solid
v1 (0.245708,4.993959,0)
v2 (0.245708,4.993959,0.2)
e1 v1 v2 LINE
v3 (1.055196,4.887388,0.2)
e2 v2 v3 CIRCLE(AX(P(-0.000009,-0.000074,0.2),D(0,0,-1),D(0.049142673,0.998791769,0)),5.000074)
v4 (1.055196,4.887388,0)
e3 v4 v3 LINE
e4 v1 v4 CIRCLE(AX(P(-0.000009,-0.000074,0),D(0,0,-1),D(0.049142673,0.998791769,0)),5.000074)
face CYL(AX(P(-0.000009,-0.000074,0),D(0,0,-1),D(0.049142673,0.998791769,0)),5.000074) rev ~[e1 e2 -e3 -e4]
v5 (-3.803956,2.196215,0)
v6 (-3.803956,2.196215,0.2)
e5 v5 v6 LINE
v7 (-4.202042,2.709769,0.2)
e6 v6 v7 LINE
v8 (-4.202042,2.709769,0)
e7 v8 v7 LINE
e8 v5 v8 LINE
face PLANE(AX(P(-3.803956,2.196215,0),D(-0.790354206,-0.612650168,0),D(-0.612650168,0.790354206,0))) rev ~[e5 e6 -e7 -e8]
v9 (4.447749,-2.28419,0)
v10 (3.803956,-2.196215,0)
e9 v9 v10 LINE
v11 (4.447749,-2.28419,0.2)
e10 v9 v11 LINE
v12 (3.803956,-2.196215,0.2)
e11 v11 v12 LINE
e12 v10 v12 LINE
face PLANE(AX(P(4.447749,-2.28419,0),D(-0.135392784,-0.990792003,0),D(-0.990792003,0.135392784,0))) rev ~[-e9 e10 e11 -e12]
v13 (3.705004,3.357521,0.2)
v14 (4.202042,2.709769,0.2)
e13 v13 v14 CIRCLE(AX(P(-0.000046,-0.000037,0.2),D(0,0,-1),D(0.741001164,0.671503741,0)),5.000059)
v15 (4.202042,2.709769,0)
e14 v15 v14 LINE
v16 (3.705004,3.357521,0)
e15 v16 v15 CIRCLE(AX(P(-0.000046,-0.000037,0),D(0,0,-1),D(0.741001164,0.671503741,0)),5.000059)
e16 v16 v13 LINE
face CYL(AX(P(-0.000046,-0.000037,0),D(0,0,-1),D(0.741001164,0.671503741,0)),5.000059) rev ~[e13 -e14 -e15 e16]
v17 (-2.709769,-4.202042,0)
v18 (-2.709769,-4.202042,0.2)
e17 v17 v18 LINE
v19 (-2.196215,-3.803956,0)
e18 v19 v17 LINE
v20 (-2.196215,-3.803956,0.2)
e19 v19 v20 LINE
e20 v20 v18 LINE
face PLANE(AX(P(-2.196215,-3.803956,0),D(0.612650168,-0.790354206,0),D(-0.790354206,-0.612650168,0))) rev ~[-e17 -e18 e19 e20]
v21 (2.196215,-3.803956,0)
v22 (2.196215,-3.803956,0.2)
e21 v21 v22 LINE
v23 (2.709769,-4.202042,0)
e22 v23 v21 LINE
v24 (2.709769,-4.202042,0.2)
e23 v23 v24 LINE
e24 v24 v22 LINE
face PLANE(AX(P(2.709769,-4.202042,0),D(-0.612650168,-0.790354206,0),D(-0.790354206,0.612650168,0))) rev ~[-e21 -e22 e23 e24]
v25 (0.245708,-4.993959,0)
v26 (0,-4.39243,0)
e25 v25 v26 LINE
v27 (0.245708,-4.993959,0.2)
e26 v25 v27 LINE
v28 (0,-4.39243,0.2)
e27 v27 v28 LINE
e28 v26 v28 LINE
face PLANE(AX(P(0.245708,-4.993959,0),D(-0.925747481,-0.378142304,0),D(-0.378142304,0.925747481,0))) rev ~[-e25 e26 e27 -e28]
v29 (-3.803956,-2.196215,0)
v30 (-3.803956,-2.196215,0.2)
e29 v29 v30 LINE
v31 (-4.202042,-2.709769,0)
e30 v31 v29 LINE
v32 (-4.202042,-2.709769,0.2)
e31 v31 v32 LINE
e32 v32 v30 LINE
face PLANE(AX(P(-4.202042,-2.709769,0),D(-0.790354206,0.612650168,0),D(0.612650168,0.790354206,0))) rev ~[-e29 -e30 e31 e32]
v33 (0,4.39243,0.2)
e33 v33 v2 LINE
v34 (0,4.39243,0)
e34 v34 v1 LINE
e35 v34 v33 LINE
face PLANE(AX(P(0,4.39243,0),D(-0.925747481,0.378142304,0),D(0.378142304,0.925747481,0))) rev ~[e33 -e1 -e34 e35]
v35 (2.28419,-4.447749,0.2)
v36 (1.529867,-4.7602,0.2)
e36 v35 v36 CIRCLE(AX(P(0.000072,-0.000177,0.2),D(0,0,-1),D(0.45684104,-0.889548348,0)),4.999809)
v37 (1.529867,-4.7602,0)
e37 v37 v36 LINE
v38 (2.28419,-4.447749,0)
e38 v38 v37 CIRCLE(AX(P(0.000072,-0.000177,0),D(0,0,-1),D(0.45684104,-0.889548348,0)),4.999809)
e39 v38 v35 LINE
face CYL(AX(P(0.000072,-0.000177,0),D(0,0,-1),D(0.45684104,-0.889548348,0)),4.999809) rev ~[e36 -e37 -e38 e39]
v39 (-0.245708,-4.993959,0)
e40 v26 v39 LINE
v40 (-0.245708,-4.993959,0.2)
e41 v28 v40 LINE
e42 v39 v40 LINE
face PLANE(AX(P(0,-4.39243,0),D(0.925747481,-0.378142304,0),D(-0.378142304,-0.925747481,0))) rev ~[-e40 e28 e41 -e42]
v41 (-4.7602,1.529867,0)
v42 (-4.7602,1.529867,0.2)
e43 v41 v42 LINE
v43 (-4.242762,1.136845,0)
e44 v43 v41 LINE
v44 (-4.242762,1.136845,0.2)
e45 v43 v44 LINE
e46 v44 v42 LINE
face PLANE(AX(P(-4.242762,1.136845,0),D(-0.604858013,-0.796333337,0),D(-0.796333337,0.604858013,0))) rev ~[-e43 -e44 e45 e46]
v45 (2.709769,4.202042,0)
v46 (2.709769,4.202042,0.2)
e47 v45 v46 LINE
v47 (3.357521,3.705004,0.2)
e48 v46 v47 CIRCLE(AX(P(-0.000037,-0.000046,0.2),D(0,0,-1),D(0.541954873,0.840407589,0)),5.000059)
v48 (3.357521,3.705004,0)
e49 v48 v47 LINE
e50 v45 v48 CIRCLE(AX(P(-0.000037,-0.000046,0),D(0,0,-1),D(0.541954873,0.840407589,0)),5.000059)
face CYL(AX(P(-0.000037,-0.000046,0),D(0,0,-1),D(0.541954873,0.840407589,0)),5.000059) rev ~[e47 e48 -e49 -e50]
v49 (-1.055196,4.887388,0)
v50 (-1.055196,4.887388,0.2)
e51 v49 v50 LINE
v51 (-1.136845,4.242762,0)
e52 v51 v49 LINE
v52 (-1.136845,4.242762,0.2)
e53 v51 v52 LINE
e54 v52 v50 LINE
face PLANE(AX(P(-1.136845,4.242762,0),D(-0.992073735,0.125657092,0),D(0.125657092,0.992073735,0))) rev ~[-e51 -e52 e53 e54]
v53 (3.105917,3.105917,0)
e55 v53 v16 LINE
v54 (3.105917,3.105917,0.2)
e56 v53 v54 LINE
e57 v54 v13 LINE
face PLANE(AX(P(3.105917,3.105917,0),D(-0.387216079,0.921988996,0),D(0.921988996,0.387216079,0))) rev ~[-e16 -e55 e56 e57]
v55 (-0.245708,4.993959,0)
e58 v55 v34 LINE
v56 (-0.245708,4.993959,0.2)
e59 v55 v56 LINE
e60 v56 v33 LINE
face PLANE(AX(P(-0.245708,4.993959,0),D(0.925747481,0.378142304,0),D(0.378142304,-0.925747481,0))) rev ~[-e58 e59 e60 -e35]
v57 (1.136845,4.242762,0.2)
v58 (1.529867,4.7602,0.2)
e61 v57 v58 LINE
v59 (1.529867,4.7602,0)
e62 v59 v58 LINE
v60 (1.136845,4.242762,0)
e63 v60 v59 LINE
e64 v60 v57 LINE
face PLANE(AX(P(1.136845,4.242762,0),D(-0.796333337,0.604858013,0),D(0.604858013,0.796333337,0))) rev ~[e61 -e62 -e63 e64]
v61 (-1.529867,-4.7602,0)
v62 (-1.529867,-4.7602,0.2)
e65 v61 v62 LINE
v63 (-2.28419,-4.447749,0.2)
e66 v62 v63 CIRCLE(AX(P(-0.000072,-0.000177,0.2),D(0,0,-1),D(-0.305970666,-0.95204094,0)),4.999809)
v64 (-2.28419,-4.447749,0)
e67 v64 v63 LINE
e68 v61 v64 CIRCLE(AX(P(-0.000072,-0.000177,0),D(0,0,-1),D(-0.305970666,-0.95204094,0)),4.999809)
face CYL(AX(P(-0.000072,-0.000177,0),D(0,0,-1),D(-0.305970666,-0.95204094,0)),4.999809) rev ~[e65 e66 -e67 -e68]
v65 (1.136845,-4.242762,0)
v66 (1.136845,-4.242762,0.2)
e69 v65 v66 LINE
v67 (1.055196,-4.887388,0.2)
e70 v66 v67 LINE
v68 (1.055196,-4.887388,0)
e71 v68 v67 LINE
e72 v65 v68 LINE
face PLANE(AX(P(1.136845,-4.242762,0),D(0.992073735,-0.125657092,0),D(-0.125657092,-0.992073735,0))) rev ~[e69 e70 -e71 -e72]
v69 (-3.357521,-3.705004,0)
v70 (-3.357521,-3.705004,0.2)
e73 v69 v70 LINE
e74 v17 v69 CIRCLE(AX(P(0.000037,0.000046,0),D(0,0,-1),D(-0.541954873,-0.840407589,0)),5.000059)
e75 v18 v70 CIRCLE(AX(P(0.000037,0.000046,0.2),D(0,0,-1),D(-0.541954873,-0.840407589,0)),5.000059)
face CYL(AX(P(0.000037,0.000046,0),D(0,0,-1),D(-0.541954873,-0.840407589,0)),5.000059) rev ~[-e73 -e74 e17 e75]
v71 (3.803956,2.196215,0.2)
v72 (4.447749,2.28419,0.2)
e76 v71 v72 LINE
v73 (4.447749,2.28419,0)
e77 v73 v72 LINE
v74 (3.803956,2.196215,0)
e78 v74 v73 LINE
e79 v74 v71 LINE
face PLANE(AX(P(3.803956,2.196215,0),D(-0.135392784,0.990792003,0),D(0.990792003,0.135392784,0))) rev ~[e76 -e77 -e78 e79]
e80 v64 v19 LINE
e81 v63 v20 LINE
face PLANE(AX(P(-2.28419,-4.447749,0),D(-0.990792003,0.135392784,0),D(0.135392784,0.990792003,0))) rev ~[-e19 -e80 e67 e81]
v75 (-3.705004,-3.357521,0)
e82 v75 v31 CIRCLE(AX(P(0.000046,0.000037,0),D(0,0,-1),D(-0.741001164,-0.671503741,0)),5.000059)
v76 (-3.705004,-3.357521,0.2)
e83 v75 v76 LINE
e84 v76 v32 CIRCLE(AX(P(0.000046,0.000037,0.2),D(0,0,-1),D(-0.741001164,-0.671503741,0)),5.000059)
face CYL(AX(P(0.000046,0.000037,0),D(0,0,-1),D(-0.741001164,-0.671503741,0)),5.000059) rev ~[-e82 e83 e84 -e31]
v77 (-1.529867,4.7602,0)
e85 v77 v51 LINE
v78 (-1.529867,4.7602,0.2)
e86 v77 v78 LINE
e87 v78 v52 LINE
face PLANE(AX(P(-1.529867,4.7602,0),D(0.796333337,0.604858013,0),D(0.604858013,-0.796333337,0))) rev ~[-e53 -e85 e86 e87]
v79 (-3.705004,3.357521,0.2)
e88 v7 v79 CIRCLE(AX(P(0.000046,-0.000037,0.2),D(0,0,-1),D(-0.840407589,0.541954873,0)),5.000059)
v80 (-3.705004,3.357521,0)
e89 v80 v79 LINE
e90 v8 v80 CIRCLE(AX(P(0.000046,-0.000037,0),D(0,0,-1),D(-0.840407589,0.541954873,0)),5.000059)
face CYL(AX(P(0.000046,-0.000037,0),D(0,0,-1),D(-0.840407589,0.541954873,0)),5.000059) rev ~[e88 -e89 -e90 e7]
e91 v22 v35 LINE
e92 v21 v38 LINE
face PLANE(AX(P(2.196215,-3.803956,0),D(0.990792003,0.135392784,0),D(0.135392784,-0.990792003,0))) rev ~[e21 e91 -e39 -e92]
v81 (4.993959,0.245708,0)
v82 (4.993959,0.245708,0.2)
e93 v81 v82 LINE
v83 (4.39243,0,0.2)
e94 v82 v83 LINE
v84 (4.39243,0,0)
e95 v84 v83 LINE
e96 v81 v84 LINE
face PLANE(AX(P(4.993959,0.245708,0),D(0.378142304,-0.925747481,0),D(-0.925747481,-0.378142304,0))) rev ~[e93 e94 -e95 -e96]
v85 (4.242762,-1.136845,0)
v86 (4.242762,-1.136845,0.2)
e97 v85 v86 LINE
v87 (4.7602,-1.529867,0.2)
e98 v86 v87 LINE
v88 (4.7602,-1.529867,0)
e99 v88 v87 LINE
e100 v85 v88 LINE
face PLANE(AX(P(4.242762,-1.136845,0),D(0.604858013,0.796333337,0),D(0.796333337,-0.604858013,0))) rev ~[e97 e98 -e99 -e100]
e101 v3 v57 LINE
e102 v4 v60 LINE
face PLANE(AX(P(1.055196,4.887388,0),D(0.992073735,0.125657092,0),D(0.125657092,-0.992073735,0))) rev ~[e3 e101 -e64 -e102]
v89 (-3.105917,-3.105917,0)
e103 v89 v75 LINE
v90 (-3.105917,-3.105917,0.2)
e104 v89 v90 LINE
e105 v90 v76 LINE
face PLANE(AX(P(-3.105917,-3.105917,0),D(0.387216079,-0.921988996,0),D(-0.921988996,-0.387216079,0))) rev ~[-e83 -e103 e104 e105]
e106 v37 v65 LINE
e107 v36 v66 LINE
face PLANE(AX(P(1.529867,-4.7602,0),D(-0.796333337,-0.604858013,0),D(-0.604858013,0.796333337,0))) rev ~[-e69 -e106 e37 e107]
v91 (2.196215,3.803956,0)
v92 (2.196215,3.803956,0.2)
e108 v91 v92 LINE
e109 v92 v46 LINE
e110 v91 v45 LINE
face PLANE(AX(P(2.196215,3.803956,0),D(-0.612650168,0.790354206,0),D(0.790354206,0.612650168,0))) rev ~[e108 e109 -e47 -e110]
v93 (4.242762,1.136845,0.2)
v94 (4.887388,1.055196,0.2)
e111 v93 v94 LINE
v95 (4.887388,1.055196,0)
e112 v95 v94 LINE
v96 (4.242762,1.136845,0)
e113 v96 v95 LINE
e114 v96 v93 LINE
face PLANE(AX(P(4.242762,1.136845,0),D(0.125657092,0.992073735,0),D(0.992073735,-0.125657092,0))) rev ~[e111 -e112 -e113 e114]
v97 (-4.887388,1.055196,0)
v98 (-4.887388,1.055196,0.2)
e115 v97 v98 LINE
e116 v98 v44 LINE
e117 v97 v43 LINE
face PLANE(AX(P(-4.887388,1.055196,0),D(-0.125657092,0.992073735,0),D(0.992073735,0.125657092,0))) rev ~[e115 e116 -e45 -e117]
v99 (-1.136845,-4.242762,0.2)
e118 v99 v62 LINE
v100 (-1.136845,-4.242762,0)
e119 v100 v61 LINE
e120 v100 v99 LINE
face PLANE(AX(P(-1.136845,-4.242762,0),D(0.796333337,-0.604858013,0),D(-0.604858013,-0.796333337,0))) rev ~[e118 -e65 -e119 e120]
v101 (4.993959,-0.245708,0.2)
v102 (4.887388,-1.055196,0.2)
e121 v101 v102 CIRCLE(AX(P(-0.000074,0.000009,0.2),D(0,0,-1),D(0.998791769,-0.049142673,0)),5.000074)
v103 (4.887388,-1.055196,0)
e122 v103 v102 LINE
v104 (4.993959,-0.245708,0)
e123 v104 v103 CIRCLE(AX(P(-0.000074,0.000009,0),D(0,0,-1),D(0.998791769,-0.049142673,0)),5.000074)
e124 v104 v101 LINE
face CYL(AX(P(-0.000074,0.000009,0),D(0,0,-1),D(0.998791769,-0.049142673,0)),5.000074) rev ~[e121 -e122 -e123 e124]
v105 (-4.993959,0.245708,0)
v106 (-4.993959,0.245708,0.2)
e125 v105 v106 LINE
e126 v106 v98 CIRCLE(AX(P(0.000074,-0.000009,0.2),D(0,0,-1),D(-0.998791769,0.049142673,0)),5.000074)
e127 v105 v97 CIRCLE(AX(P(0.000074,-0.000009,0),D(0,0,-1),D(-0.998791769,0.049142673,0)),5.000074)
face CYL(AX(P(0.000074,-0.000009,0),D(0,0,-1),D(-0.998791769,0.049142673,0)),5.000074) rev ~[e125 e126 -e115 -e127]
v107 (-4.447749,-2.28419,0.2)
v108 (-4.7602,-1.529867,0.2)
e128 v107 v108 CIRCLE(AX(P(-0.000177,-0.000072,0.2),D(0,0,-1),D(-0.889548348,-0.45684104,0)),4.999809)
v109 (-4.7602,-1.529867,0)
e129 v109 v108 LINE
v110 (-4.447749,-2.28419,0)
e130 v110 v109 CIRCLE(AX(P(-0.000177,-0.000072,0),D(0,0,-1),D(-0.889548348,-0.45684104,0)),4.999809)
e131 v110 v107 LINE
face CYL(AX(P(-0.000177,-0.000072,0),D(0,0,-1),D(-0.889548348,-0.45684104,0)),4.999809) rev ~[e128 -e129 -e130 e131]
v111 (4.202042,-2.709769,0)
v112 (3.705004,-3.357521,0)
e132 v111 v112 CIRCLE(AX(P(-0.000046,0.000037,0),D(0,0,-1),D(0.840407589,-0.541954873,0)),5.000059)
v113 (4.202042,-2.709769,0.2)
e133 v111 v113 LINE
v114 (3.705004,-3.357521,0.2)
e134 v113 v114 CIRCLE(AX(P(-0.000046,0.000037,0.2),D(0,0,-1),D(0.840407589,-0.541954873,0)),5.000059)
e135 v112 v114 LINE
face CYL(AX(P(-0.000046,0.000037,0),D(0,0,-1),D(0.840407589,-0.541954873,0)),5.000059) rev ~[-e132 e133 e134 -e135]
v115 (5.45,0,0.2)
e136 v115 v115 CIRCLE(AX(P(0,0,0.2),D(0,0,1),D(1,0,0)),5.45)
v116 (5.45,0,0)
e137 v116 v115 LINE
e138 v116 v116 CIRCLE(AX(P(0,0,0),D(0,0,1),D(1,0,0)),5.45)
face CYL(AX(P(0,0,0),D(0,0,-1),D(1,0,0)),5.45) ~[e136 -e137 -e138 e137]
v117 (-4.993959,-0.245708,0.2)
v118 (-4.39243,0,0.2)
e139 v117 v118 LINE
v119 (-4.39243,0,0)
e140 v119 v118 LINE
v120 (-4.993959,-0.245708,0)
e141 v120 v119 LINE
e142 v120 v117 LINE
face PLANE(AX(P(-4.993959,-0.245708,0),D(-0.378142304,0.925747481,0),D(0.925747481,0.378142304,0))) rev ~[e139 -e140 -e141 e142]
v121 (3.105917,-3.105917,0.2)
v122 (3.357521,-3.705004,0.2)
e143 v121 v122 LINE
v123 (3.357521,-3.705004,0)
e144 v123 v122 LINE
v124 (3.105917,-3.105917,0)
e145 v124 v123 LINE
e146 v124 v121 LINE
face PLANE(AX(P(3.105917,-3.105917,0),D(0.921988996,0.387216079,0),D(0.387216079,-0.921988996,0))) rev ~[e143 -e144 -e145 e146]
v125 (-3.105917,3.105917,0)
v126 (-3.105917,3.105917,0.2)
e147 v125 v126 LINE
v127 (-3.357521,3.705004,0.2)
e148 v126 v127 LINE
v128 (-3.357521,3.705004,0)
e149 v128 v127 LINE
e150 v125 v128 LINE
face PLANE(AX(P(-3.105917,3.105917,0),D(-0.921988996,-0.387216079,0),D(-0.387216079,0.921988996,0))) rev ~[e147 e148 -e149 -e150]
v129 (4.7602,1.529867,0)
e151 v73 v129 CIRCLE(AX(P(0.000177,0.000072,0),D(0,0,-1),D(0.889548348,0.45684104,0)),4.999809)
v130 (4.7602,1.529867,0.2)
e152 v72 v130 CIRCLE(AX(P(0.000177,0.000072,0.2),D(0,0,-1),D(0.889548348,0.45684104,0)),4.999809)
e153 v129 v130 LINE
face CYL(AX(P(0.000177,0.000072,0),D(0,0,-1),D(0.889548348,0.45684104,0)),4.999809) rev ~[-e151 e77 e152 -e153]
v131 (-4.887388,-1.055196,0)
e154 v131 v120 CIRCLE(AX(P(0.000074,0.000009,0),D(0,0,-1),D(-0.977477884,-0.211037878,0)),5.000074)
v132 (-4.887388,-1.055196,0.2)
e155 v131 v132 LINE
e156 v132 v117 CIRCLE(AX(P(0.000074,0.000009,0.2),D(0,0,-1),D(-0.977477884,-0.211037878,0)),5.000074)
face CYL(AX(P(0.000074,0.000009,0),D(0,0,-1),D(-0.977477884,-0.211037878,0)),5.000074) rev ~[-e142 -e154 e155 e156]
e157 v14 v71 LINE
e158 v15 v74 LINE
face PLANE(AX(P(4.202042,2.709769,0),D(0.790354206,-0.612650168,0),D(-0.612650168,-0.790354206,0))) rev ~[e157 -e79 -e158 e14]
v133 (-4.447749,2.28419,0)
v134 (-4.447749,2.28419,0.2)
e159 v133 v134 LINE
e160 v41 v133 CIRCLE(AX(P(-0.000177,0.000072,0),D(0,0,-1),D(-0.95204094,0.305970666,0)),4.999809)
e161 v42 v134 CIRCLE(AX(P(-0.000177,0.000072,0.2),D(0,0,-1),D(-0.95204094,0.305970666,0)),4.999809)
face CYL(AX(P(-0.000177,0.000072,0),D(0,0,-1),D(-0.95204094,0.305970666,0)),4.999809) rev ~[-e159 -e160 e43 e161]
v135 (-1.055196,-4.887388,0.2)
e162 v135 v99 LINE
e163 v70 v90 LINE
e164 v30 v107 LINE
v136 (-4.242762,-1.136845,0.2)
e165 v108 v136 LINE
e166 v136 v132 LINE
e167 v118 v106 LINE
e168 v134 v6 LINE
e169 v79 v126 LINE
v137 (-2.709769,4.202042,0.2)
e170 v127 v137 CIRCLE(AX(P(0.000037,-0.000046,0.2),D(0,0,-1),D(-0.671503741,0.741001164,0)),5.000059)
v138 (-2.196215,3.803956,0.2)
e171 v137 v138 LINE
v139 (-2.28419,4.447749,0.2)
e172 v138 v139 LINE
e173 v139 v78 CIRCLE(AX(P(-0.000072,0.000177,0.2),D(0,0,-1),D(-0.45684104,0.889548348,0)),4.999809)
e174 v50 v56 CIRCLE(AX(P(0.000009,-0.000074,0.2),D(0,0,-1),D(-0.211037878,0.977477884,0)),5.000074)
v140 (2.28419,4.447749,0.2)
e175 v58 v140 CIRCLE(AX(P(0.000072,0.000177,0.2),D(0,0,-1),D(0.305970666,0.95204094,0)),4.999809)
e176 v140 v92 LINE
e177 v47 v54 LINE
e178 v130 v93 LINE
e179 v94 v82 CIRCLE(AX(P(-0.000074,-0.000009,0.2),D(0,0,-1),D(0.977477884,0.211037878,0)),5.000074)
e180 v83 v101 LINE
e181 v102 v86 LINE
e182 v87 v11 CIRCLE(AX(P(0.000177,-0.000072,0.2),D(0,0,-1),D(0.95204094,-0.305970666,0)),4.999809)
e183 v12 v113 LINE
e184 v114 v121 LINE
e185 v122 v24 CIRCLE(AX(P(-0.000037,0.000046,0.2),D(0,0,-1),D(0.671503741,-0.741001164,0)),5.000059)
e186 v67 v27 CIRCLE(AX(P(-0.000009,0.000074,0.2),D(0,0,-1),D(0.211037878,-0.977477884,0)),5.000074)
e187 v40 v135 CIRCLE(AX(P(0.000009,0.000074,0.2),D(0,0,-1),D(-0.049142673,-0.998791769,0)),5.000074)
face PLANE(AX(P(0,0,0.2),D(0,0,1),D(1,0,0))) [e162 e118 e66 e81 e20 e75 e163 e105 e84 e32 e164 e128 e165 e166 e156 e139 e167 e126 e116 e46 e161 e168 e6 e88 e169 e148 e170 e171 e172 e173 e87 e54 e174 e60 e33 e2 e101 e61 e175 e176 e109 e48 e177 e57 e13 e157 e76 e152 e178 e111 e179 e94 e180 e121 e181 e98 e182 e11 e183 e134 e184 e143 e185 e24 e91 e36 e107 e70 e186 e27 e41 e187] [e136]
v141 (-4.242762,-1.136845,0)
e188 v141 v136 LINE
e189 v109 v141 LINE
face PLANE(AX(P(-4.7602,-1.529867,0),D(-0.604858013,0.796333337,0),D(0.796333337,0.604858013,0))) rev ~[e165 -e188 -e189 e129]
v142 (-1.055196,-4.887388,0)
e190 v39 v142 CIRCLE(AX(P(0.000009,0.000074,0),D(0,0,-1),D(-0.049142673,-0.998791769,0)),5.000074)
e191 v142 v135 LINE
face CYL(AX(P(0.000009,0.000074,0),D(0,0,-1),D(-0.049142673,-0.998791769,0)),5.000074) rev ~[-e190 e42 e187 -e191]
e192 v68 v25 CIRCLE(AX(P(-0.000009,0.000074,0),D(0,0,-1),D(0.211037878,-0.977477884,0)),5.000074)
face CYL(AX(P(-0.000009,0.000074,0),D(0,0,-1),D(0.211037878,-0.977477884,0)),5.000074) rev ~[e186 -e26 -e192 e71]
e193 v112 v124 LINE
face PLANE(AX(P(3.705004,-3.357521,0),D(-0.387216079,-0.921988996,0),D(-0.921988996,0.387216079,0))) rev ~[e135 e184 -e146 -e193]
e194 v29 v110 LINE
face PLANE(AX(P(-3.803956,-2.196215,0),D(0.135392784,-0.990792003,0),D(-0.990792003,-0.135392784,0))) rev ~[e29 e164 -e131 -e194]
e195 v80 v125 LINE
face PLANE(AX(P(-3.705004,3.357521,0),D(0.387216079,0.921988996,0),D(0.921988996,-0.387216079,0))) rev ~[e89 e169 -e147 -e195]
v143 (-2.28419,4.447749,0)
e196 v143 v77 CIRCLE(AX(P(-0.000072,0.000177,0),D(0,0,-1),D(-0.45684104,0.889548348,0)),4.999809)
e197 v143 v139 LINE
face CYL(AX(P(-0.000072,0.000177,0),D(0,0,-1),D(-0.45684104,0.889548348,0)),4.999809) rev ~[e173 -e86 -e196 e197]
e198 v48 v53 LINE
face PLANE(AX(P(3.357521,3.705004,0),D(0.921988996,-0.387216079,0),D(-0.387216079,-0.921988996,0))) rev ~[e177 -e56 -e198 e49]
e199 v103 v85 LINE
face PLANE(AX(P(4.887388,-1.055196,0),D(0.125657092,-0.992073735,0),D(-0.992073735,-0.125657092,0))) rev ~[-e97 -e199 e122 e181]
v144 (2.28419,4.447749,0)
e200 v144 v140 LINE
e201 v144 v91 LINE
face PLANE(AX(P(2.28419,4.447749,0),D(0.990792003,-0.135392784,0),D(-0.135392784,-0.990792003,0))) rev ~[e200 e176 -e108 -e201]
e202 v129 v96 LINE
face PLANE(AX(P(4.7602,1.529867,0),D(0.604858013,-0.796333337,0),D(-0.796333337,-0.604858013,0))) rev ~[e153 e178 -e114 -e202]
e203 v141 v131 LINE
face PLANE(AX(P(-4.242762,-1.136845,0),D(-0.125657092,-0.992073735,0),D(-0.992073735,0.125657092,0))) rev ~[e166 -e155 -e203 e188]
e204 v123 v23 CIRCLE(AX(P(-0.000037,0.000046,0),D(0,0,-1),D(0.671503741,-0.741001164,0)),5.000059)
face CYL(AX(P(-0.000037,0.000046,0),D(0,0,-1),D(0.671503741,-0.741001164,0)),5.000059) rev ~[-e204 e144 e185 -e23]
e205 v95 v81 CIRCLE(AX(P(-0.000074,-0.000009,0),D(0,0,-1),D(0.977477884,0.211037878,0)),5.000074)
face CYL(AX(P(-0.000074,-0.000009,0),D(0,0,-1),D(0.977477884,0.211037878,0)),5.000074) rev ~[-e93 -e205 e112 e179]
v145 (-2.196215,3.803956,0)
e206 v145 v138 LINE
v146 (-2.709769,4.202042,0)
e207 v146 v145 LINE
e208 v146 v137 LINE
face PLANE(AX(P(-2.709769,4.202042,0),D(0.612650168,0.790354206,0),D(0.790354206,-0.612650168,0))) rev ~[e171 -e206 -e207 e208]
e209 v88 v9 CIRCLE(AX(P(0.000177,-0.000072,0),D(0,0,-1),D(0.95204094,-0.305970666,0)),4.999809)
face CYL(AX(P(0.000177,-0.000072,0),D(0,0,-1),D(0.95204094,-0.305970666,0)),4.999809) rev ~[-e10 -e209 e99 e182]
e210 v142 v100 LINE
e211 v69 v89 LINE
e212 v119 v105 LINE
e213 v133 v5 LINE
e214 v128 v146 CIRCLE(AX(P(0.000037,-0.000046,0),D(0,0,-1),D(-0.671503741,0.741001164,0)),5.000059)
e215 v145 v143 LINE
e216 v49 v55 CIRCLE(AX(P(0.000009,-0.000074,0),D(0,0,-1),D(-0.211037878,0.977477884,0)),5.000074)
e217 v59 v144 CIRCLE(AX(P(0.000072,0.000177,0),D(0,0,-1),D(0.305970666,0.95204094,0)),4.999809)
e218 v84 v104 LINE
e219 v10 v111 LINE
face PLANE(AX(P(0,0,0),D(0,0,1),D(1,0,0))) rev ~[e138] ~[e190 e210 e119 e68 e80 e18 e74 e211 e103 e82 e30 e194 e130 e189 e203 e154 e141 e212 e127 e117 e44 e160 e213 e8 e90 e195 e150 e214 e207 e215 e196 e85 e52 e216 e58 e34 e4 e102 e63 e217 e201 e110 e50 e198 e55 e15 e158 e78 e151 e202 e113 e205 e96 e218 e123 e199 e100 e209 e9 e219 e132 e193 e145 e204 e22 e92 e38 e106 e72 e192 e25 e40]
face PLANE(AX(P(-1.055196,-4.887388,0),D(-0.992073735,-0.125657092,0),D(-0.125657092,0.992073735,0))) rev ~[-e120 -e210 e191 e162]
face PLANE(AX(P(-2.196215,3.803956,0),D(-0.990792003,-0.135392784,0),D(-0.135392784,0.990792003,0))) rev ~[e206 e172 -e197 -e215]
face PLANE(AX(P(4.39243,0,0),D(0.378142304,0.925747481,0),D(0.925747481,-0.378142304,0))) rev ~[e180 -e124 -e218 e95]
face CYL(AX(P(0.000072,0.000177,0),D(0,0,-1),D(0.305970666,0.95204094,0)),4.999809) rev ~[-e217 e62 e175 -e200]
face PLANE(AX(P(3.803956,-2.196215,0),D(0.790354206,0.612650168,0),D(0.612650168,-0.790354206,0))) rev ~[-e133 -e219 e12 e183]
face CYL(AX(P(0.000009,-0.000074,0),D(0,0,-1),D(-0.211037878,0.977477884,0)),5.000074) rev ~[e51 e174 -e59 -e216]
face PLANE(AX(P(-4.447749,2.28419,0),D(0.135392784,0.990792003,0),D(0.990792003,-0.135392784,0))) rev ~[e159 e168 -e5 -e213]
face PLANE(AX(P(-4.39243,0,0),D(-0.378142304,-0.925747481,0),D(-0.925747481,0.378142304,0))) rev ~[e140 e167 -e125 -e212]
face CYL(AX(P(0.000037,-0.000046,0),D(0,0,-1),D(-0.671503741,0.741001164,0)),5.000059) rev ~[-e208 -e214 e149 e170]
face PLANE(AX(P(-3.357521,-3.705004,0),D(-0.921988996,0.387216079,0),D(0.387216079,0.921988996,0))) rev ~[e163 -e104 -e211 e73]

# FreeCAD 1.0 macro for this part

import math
import FreeCAD as App
import Part
import Sketcher
from FreeCAD import Vector
Q = App.Units.Quantity

doc = App.newDocument("Part")
body = doc.addObject("PartDesign::Body", "Body")

# Sketch on XY plane
sketch1 = body.newObject("Sketcher::SketchObject", "Sketch")
sketch1.AttachmentSupport = (doc.getObject("XY_Plane"), [""])
sketch1.MapMode = "FlatFace"
sketch1.addGeometry([
    Part.Circle(Vector(0, 0, 0), Vector(0, 0, 1), 5.45),  # 0
    Part.ArcOfCircle(Part.Circle(Vector(-0.000074, -0.000009, 0), Vector(0, 0, 1), 5.000074), math.radians(2.816802), math.radians(12.183181)),  # 1
    Part.LineSegment(Vector(4.993959, 0.245708, 0), Vector(4.39243, 0, 0)),  # 2
    Part.LineSegment(Vector(4.39243, 0, 0), Vector(4.993959, -0.245708, 0)),  # 3
    Part.ArcOfCircle(Part.Circle(Vector(-0.000074, 0.000009, 0), Vector(0, 0, 1), 5.000074), math.radians(-12.183181), math.radians(-2.816802)),  # 4
    Part.LineSegment(Vector(4.887388, -1.055196, 0), Vector(4.242762, -1.136845, 0)),  # 5
    Part.LineSegment(Vector(4.242762, -1.136845, 0), Vector(4.7602, -1.529867, 0)),  # 6
    Part.ArcOfCircle(Part.Circle(Vector(0.000177, -0.000072, 0), Vector(0, 0, 1), 4.999809), math.radians(-27.183453), math.radians(-17.816571)),  # 7
    Part.LineSegment(Vector(4.447749, -2.28419, 0), Vector(3.803956, -2.196215, 0)),  # 8
    Part.LineSegment(Vector(3.803956, -2.196215, 0), Vector(4.202042, -2.709769, 0)),  # 9
    Part.ArcOfCircle(Part.Circle(Vector(-0.000046, 0.000037, 0), Vector(0, 0, 1), 5.000059), math.radians(-42.183231), math.radians(-32.816815)),  # 10
    Part.LineSegment(Vector(3.705004, -3.357521, 0), Vector(3.105917, -3.105917, 0)),  # 11
    Part.LineSegment(Vector(3.105917, -3.105917, 0), Vector(3.357521, -3.705004, 0)),  # 12
    Part.ArcOfCircle(Part.Circle(Vector(-0.000037, 0.000046, 0), Vector(0, 0, 1), 5.000059), math.radians(-57.183185), math.radians(-47.816769)),  # 13
    Part.LineSegment(Vector(2.709769, -4.202042, 0), Vector(2.196215, -3.803956, 0)),  # 14
    Part.LineSegment(Vector(2.196215, -3.803956, 0), Vector(2.28419, -4.447749, 0)),  # 15
    Part.ArcOfCircle(Part.Circle(Vector(0.000072, -0.000177, 0), Vector(0, 0, 1), 4.999809), math.radians(-72.183429), math.radians(-62.816547)),  # 16
    Part.LineSegment(Vector(1.529867, -4.7602, 0), Vector(1.136845, -4.242762, 0)),  # 17
    Part.LineSegment(Vector(1.136845, -4.242762, 0), Vector(1.055196, -4.887388, 0)),  # 18
    Part.ArcOfCircle(Part.Circle(Vector(-0.000009, 0.000074, 0), Vector(0, 0, 1), 5.000074), math.radians(-87.183198), math.radians(-77.816819)),  # 19
    Part.LineSegment(Vector(0.245708, -4.993959, 0), Vector(0, -4.39243, 0)),  # 20
    Part.LineSegment(Vector(0, -4.39243, 0), Vector(-0.245708, -4.993959, 0)),  # 21
    Part.ArcOfCircle(Part.Circle(Vector(0.000009, 0.000074, 0), Vector(0, 0, 1), 5.000074), math.radians(-102.183181), math.radians(-92.816802)),  # 22
    Part.LineSegment(Vector(-1.055196, -4.887388, 0), Vector(-1.136845, -4.242762, 0)),  # 23
    Part.LineSegment(Vector(-1.136845, -4.242762, 0), Vector(-1.529867, -4.7602, 0)),  # 24
    Part.ArcOfCircle(Part.Circle(Vector(-0.000072, -0.000177, 0), Vector(0, 0, 1), 4.999809), math.radians(-117.183453), math.radians(-107.816571)),  # 25
    Part.LineSegment(Vector(-2.28419, -4.447749, 0), Vector(-2.196215, -3.803956, 0)),  # 26
    Part.LineSegment(Vector(-2.196215, -3.803956, 0), Vector(-2.709769, -4.202042, 0)),  # 27
    Part.ArcOfCircle(Part.Circle(Vector(0.000037, 0.000046, 0), Vector(0, 0, 1), 5.000059), math.radians(-132.183231), math.radians(-122.816815)),  # 28
    Part.LineSegment(Vector(-3.357521, -3.705004, 0), Vector(-3.105917, -3.105917, 0)),  # 29
    Part.LineSegment(Vector(-3.105917, -3.105917, 0), Vector(-3.705004, -3.357521, 0)),  # 30
    Part.ArcOfCircle(Part.Circle(Vector(0.000046, 0.000037, 0), Vector(0, 0, 1), 5.000059), math.radians(-147.183185), math.radians(-137.816769)),  # 31
    Part.LineSegment(Vector(-4.202042, -2.709769, 0), Vector(-3.803956, -2.196215, 0)),  # 32
    Part.LineSegment(Vector(-3.803956, -2.196215, 0), Vector(-4.447749, -2.28419, 0)),  # 33
    Part.ArcOfCircle(Part.Circle(Vector(-0.000177, -0.000072, 0), Vector(0, 0, 1), 4.999809), math.radians(-162.183429), math.radians(-152.816547)),  # 34
    Part.LineSegment(Vector(-4.7602, -1.529867, 0), Vector(-4.242762, -1.136845, 0)),  # 35
    Part.LineSegment(Vector(-4.242762, -1.136845, 0), Vector(-4.887388, -1.055196, 0)),  # 36
    Part.ArcOfCircle(Part.Circle(Vector(0.000074, 0.000009, 0), Vector(0, 0, 1), 5.000074), math.radians(-177.183198), math.radians(-167.816819)),  # 37
    Part.LineSegment(Vector(-4.993959, -0.245708, 0), Vector(-4.39243, 0, 0)),  # 38
    Part.LineSegment(Vector(-4.39243, 0, 0), Vector(-4.993959, 0.245708, 0)),  # 39
    Part.ArcOfCircle(Part.Circle(Vector(0.000074, -0.000009, 0), Vector(0, 0, 1), 5.000074), math.radians(167.816819), math.radians(177.183198)),  # 40
    Part.LineSegment(Vector(-4.887388, 1.055196, 0), Vector(-4.242762, 1.136845, 0)),  # 41
    Part.LineSegment(Vector(-4.242762, 1.136845, 0), Vector(-4.7602, 1.529867, 0)),  # 42
    Part.ArcOfCircle(Part.Circle(Vector(-0.000177, 0.000072, 0), Vector(0, 0, 1), 4.999809), math.radians(152.816547), math.radians(162.183429)),  # 43
    Part.LineSegment(Vector(-4.447749, 2.28419, 0), Vector(-3.803956, 2.196215, 0)),  # 44
    Part.LineSegment(Vector(-3.803956, 2.196215, 0), Vector(-4.202042, 2.709769, 0)),  # 45
    Part.ArcOfCircle(Part.Circle(Vector(0.000046, -0.000037, 0), Vector(0, 0, 1), 5.000059), math.radians(137.816769), math.radians(147.183185)),  # 46
    Part.LineSegment(Vector(-3.705004, 3.357521, 0), Vector(-3.105917, 3.105917, 0)),  # 47
    Part.LineSegment(Vector(-3.105917, 3.105917, 0), Vector(-3.357521, 3.705004, 0)),  # 48
    Part.ArcOfCircle(Part.Circle(Vector(0.000037, -0.000046, 0), Vector(0, 0, 1), 5.000059), math.radians(122.816815), math.radians(132.183231)),  # 49
    Part.LineSegment(Vector(-2.709769, 4.202042, 0), Vector(-2.196215, 3.803956, 0)),  # 50
    Part.LineSegment(Vector(-2.196215, 3.803956, 0), Vector(-2.28419, 4.447749, 0)),  # 51
    Part.ArcOfCircle(Part.Circle(Vector(-0.000072, 0.000177, 0), Vector(0, 0, 1), 4.999809), math.radians(107.816571), math.radians(117.183453)),  # 52
    Part.LineSegment(Vector(-1.529867, 4.7602, 0), Vector(-1.136845, 4.242762, 0)),  # 53
    Part.LineSegment(Vector(-1.136845, 4.242762, 0), Vector(-1.055196, 4.887388, 0)),  # 54
    Part.ArcOfCircle(Part.Circle(Vector(0.000009, -0.000074, 0), Vector(0, 0, 1), 5.000074), math.radians(92.816802), math.radians(102.183181)),  # 55
    Part.LineSegment(Vector(-0.245708, 4.993959, 0), Vector(0, 4.39243, 0)),  # 56
    Part.LineSegment(Vector(0, 4.39243, 0), Vector(0.245708, 4.993959, 0)),  # 57
    Part.ArcOfCircle(Part.Circle(Vector(-0.000009, -0.000074, 0), Vector(0, 0, 1), 5.000074), math.radians(77.816819), math.radians(87.183198)),  # 58
    Part.LineSegment(Vector(1.055196, 4.887388, 0), Vector(1.136845, 4.242762, 0)),  # 59
    Part.LineSegment(Vector(1.136845, 4.242762, 0), Vector(1.529867, 4.7602, 0)),  # 60
    Part.ArcOfCircle(Part.Circle(Vector(0.000072, 0.000177, 0), Vector(0, 0, 1), 4.999809), math.radians(62.816547), math.radians(72.183429)),  # 61
    Part.LineSegment(Vector(2.28419, 4.447749, 0), Vector(2.196215, 3.803956, 0)),  # 62
    Part.LineSegment(Vector(2.196215, 3.803956, 0), Vector(2.709769, 4.202042, 0)),  # 63
    Part.ArcOfCircle(Part.Circle(Vector(-0.000037, -0.000046, 0), Vector(0, 0, 1), 5.000059), math.radians(47.816769), math.radians(57.183185)),  # 64
    Part.LineSegment(Vector(3.357521, 3.705004, 0), Vector(3.105917, 3.105917, 0)),  # 65
    Part.LineSegment(Vector(3.105917, 3.105917, 0), Vector(3.705004, 3.357521, 0)),  # 66
    Part.ArcOfCircle(Part.Circle(Vector(-0.000046, -0.000037, 0), Vector(0, 0, 1), 5.000059), math.radians(32.816815), math.radians(42.183231)),  # 67
    Part.LineSegment(Vector(4.202042, 2.709769, 0), Vector(3.803956, 2.196215, 0)),  # 68
    Part.LineSegment(Vector(3.803956, 2.196215, 0), Vector(4.447749, 2.28419, 0)),  # 69
    Part.ArcOfCircle(Part.Circle(Vector(0.000177, 0.000072, 0), Vector(0, 0, 1), 4.999809), math.radians(17.816571), math.radians(27.183453)),  # 70
    Part.LineSegment(Vector(4.7602, 1.529867, 0), Vector(4.242762, 1.136845, 0)),  # 71
    Part.LineSegment(Vector(4.242762, 1.136845, 0), Vector(4.887388, 1.055196, 0)),  # 72
], False)
sketch1.addConstraint([
    Sketcher.Constraint("Coincident", 1, 1, 2, 1),
    Sketcher.Constraint("Coincident", 2, 2, 3, 1),
    Sketcher.Constraint("Coincident", 3, 2, 4, 2),
    Sketcher.Constraint("Coincident", 4, 1, 5, 1),
    Sketcher.Constraint("Coincident", 5, 2, 6, 1),
    Sketcher.Constraint("Coincident", 6, 2, 7, 2),
    Sketcher.Constraint("Coincident", 7, 1, 8, 1),
    Sketcher.Constraint("Coincident", 8, 2, 9, 1),
    Sketcher.Constraint("Coincident", 9, 2, 10, 2),
    Sketcher.Constraint("Coincident", 10, 1, 11, 1),
    Sketcher.Constraint("Coincident", 11, 2, 12, 1),
    Sketcher.Constraint("Coincident", 12, 2, 13, 2),
    Sketcher.Constraint("Coincident", 13, 1, 14, 1),
    Sketcher.Constraint("Coincident", 14, 2, 15, 1),
    Sketcher.Constraint("Coincident", 15, 2, 16, 2),
    Sketcher.Constraint("Coincident", 16, 1, 17, 1),
    Sketcher.Constraint("Coincident", 17, 2, 18, 1),
    Sketcher.Constraint("Coincident", 18, 2, 19, 2),
    Sketcher.Constraint("Coincident", 19, 1, 20, 1),
    Sketcher.Constraint("Coincident", 20, 2, 21, 1),
    Sketcher.Constraint("Coincident", 21, 2, 22, 2),
    Sketcher.Constraint("Coincident", 22, 1, 23, 1),
    Sketcher.Constraint("Coincident", 23, 2, 24, 1),
    Sketcher.Constraint("Coincident", 24, 2, 25, 2),
    Sketcher.Constraint("Coincident", 25, 1, 26, 1),
    Sketcher.Constraint("Coincident", 26, 2, 27, 1),
    Sketcher.Constraint("Coincident", 27, 2, 28, 2),
    Sketcher.Constraint("Coincident", 28, 1, 29, 1),
    Sketcher.Constraint("Coincident", 29, 2, 30, 1),
    Sketcher.Constraint("Coincident", 30, 2, 31, 2),
    Sketcher.Constraint("Coincident", 31, 1, 32, 1),
    Sketcher.Constraint("Coincident", 32, 2, 33, 1),
    Sketcher.Constraint("Coincident", 33, 2, 34, 2),
    Sketcher.Constraint("Coincident", 34, 1, 35, 1),
    Sketcher.Constraint("Coincident", 35, 2, 36, 1),
    Sketcher.Constraint("Coincident", 36, 2, 37, 2),
    Sketcher.Constraint("Coincident", 37, 1, 38, 1),
    Sketcher.Constraint("Coincident", 38, 2, 39, 1),
    Sketcher.Constraint("Coincident", 39, 2, 40, 2),
    Sketcher.Constraint("Coincident", 40, 1, 41, 1),
    Sketcher.Constraint("Coincident", 41, 2, 42, 1),
    Sketcher.Constraint("Coincident", 42, 2, 43, 2),
    Sketcher.Constraint("Coincident", 43, 1, 44, 1),
    Sketcher.Constraint("Coincident", 44, 2, 45, 1),
    Sketcher.Constraint("Coincident", 45, 2, 46, 2),
    Sketcher.Constraint("Coincident", 46, 1, 47, 1),
    Sketcher.Constraint("Coincident", 47, 2, 48, 1),
    Sketcher.Constraint("Coincident", 48, 2, 49, 2),
    Sketcher.Constraint("Coincident", 49, 1, 50, 1),
    Sketcher.Constraint("Coincident", 50, 2, 51, 1),
    Sketcher.Constraint("Coincident", 51, 2, 52, 2),
    Sketcher.Constraint("Coincident", 52, 1, 53, 1),
    Sketcher.Constraint("Coincident", 53, 2, 54, 1),
    Sketcher.Constraint("Coincident", 54, 2, 55, 2),
    Sketcher.Constraint("Coincident", 55, 1, 56, 1),
    Sketcher.Constraint("Coincident", 56, 2, 57, 1),
    Sketcher.Constraint("Coincident", 57, 2, 58, 2),
    Sketcher.Constraint("Coincident", 58, 1, 59, 1),
    Sketcher.Constraint("Coincident", 59, 2, 60, 1),
    Sketcher.Constraint("Coincident", 60, 2, 61, 2),
    Sketcher.Constraint("Coincident", 61, 1, 62, 1),
    Sketcher.Constraint("Coincident", 62, 2, 63, 1),
    Sketcher.Constraint("Coincident", 63, 2, 64, 2),
    Sketcher.Constraint("Coincident", 64, 1, 65, 1),
    Sketcher.Constraint("Coincident", 65, 2, 66, 1),
    Sketcher.Constraint("Coincident", 66, 2, 67, 2),
    Sketcher.Constraint("Coincident", 67, 1, 68, 1),
    Sketcher.Constraint("Coincident", 68, 2, 69, 1),
    Sketcher.Constraint("Coincident", 69, 2, 70, 2),
    Sketcher.Constraint("Coincident", 70, 1, 71, 1),
    Sketcher.Constraint("Coincident", 71, 2, 72, 1),
    Sketcher.Constraint("Coincident", 72, 2, 1, 2),
    Sketcher.Constraint("Coincident", 0, 3, -1, 1),
    Sketcher.Constraint("PointOnObject", 2, 2, -1),
    Sketcher.Constraint("PointOnObject", 20, 2, -2),
    Sketcher.Constraint("PointOnObject", 38, 2, -1),
    Sketcher.Constraint("PointOnObject", 56, 2, -2),
    Sketcher.Constraint("Diameter", 0, Q("10.9 mm")),
    Sketcher.Constraint("Radius", 7, Q("4.999809 mm")),
    Sketcher.Constraint("Radius", 10, Q("5.000059 mm")),
    Sketcher.Constraint("Radius", 13, Q("5.000059 mm")),
    Sketcher.Constraint("Radius", 16, Q("4.999809 mm")),
    Sketcher.Constraint("Radius", 25, Q("4.999809 mm")),
    Sketcher.Constraint("Radius", 28, Q("5.000059 mm")),
    Sketcher.Constraint("Radius", 31, Q("5.000059 mm")),
    Sketcher.Constraint("Radius", 34, Q("4.999809 mm")),
    Sketcher.Constraint("Radius", 43, Q("4.999809 mm")),
    Sketcher.Constraint("Radius", 46, Q("5.000059 mm")),
    Sketcher.Constraint("Radius", 49, Q("5.000059 mm")),
    Sketcher.Constraint("Radius", 52, Q("4.999809 mm")),
    Sketcher.Constraint("Radius", 61, Q("4.999809 mm")),
    Sketcher.Constraint("Radius", 64, Q("5.000059 mm")),
    Sketcher.Constraint("Radius", 67, Q("5.000059 mm")),
    Sketcher.Constraint("Radius", 70, Q("4.999809 mm")),
    Sketcher.Constraint("Radius", 1, Q("5.000074 mm")),
    Sketcher.Constraint("Radius", 4, Q("5.000074 mm")),
    Sketcher.Constraint("Radius", 19, Q("5.000074 mm")),
    Sketcher.Constraint("Radius", 22, Q("5.000074 mm")),
    Sketcher.Constraint("Radius", 37, Q("5.000074 mm")),
    Sketcher.Constraint("Radius", 40, Q("5.000074 mm")),
    Sketcher.Constraint("Radius", 55, Q("5.000074 mm")),
    Sketcher.Constraint("Radius", 58, Q("5.000074 mm")),
    Sketcher.Constraint("DistanceX", -1, 1, 6, 2, Q("4.7602 mm")),
    Sketcher.Constraint("DistanceY", 16, 1, -1, 1, Q("4.7602 mm")),
    Sketcher.Constraint("DistanceY", 24, 2, -1, 1, Q("4.7602 mm")),
    Sketcher.Constraint("DistanceX", 34, 1, -1, 1, Q("4.7602 mm")),
    Sketcher.Constraint("DistanceX", 42, 2, -1, 1, Q("4.7602 mm")),
    Sketcher.Constraint("DistanceY", -1, 1, 52, 1, Q("4.7602 mm")),
    Sketcher.Constraint("DistanceY", -1, 1, 60, 2, Q("4.7602 mm")),
    Sketcher.Constraint("DistanceX", -1, 1, 70, 1, Q("4.7602 mm")),
    Sketcher.Constraint("DistanceX", -1, 1, 1, 1, Q("4.993959 mm")),
    Sketcher.Constraint("DistanceY", -1, 1, 1, 1, Q("0.245708 mm")),
    Sketcher.Constraint("DistanceX", -1, 1, 2, 2, Q("4.39243 mm")),
    Sketcher.Constraint("DistanceX", -1, 1, 3, 2, Q("4.993959 mm")),
    Sketcher.Constraint("DistanceX", -1, 1, 4, 1, Q("4.887388 mm")),
    Sketcher.Constraint("DistanceX", -1, 1, 7, 1, Q("4.447749 mm")),
    Sketcher.Constraint("DistanceY", 7, 1, -1, 1, Q("2.28419 mm")),
    Sketcher.Constraint("DistanceX", -1, 1, 9, 2, Q("4.202042 mm")),
    Sketcher.Constraint("DistanceY", 9, 2, -1, 1, Q("2.709769 mm")),
    Sketcher.Constraint("DistanceY", 10, 1, -1, 1, Q("3.357521 mm")),
    Sketcher.Constraint("DistanceX", -1, 1, 12, 2, Q("3.357521 mm")),
    Sketcher.Constraint("DistanceX", -1, 1, 13, 1, Q("2.709769 mm")),
    Sketcher.Constraint("DistanceX", -1, 1, 15, 2, Q("2.28419 mm")),
    Sketcher.Constraint("DistanceY", 15, 2, -1, 1, Q("4.447749 mm")),
    Sketcher.Constraint("DistanceX", -1, 1, 19, 1, Q("0.245708 mm")),
    Sketcher.Constraint("DistanceY", 19, 1, -1, 1, Q("4.993959 mm")),
    Sketcher.Constraint("DistanceY", 20, 2, -1, 1, Q("4.39243 mm")),
    Sketcher.Constraint("DistanceY", 21, 2, -1, 1, Q("4.993959 mm")),
    Sketcher.Constraint("DistanceY", 22, 1, -1, 1, Q("4.887388 mm")),
    Sketcher.Constraint("DistanceX", 25, 1, -1, 1, Q("2.28419 mm")),
    Sketcher.Constraint("DistanceY", 25, 1, -1, 1, Q("4.447749 mm")),
    Sketcher.Constraint("DistanceX", 27, 2, -1, 1, Q("2.709769 mm")),
    Sketcher.Constraint("DistanceY", 27, 2, -1, 1, Q("4.202042 mm")),
    Sketcher.Constraint("DistanceX", 28, 1, -1, 1, Q("3.357521 mm")),
    Sketcher.Constraint("DistanceY", 30, 2, -1, 1, Q("3.357521 mm")),
    Sketcher.Constraint("DistanceY", 31, 1, -1, 1, Q("2.709769 mm")),
    Sketcher.Constraint("DistanceX", 33, 2, -1, 1, Q("4.447749 mm")),
    Sketcher.Constraint("DistanceY", 33, 2, -1, 1, Q("2.28419 mm")),
    Sketcher.Constraint("DistanceX", 37, 1, -1, 1, Q("4.993959 mm")),
    Sketcher.Constraint("DistanceY", 37, 1, -1, 1, Q("0.245708 mm")),
    Sketcher.Constraint("DistanceX", 38, 2, -1, 1, Q("4.39243 mm")),
    Sketcher.Constraint("DistanceX", 39, 2, -1, 1, Q("4.993959 mm")),
    Sketcher.Constraint("DistanceX", 40, 1, -1, 1, Q("4.887388 mm")),
    Sketcher.Constraint("DistanceX", 43, 1, -1, 1, Q("4.447749 mm")),
    Sketcher.Constraint("DistanceY", -1, 1, 43, 1, Q("2.28419 mm")),
    Sketcher.Constraint("DistanceX", 45, 2, -1, 1, Q("4.202042 mm")),
    Sketcher.Constraint("DistanceY", -1, 1, 45, 2, Q("2.709769 mm")),
    Sketcher.Constraint("DistanceY", -1, 1, 46, 1, Q("3.357521 mm")),
    Sketcher.Constraint("DistanceX", 48, 2, -1, 1, Q("3.357521 mm")),
    Sketcher.Constraint("DistanceX", 49, 1, -1, 1, Q("2.709769 mm")),
    Sketcher.Constraint("DistanceX", 51, 2, -1, 1, Q("2.28419 mm")),
    Sketcher.Constraint("DistanceY", -1, 1, 51, 2, Q("4.447749 mm")),
    Sketcher.Constraint("DistanceX", 55, 1, -1, 1, Q("0.245708 mm")),
    Sketcher.Constraint("DistanceY", -1, 1, 55, 1, Q("4.993959 mm")),
    Sketcher.Constraint("DistanceY", -1, 1, 56, 2, Q("4.39243 mm")),
    Sketcher.Constraint("DistanceY", -1, 1, 57, 2, Q("4.993959 mm")),
    Sketcher.Constraint("DistanceY", -1, 1, 58, 1, Q("4.887388 mm")),
    Sketcher.Constraint("DistanceX", -1, 1, 61, 1, Q("2.28419 mm")),
    Sketcher.Constraint("DistanceY", -1, 1, 61, 1, Q("4.447749 mm")),
    Sketcher.Constraint("DistanceX", -1, 1, 63, 2, Q("2.709769 mm")),
    Sketcher.Constraint("DistanceY", -1, 1, 63, 2, Q("4.202042 mm")),
    Sketcher.Constraint("DistanceX", -1, 1, 64, 1, Q("3.357521 mm")),
    Sketcher.Constraint("DistanceY", -1, 1, 66, 2, Q("3.357521 mm")),
    Sketcher.Constraint("DistanceY", -1, 1, 67, 1, Q("2.709769 mm")),
    Sketcher.Constraint("DistanceX", -1, 1, 69, 2, Q("4.447749 mm")),
    Sketcher.Constraint("DistanceY", -1, 1, 69, 2, Q("2.28419 mm")),
    Sketcher.Constraint("Distance", 3, Q("0.649777 mm")),
    Sketcher.Constraint("Distance", 5, Q("0.649776 mm")),
    Sketcher.Constraint("Distance", 6, Q("0.649776 mm")),
    Sketcher.Constraint("Distance", 8, Q("0.649776 mm")),
    Sketcher.Constraint("Distance", 9, Q("0.649777 mm")),
    Sketcher.Constraint("Distance", 11, Q("0.649777 mm")),
    Sketcher.Constraint("Distance", 12, Q("0.649777 mm")),
    Sketcher.Constraint("Distance", 14, Q("0.649777 mm")),
    Sketcher.Constraint("Distance", 15, Q("0.649776 mm")),
    Sketcher.Constraint("Distance", 17, Q("0.649776 mm")),
    Sketcher.Constraint("Distance", 18, Q("0.649776 mm")),
    Sketcher.Constraint("Distance", 21, Q("0.649777 mm")),
    Sketcher.Constraint("Distance", 23, Q("0.649776 mm")),
    Sketcher.Constraint("Distance", 24, Q("0.649776 mm")),
    Sketcher.Constraint("Distance", 26, Q("0.649776 mm")),
    Sketcher.Constraint("Distance", 27, Q("0.649777 mm")),
    Sketcher.Constraint("Distance", 29, Q("0.649777 mm")),
    Sketcher.Constraint("Distance", 30, Q("0.649777 mm")),
    Sketcher.Constraint("Distance", 32, Q("0.649777 mm")),
    Sketcher.Constraint("Distance", 33, Q("0.649776 mm")),
    Sketcher.Constraint("Distance", 35, Q("0.649776 mm")),
    Sketcher.Constraint("Distance", 36, Q("0.649776 mm")),
    Sketcher.Constraint("Distance", 39, Q("0.649777 mm")),
    Sketcher.Constraint("Distance", 41, Q("0.649776 mm")),
    Sketcher.Constraint("Distance", 42, Q("0.649776 mm")),
    Sketcher.Constraint("Distance", 44, Q("0.649776 mm")),
    Sketcher.Constraint("Distance", 45, Q("0.649777 mm")),
    Sketcher.Constraint("Distance", 47, Q("0.649777 mm")),
    Sketcher.Constraint("Distance", 48, Q("0.649777 mm")),
    Sketcher.Constraint("Distance", 50, Q("0.649777 mm")),
    Sketcher.Constraint("Distance", 51, Q("0.649776 mm")),
    Sketcher.Constraint("Distance", 53, Q("0.649776 mm")),
    Sketcher.Constraint("Distance", 54, Q("0.649776 mm")),
    Sketcher.Constraint("Distance", 57, Q("0.649777 mm")),
    Sketcher.Constraint("Distance", 59, Q("0.649776 mm")),
    Sketcher.Constraint("Distance", 60, Q("0.649776 mm")),
    Sketcher.Constraint("Distance", 62, Q("0.649776 mm")),
    Sketcher.Constraint("Distance", 63, Q("0.649777 mm")),
    Sketcher.Constraint("Distance", 65, Q("0.649777 mm")),
    Sketcher.Constraint("Distance", 66, Q("0.649777 mm")),
    Sketcher.Constraint("Distance", 68, Q("0.649777 mm")),
    Sketcher.Constraint("Distance", 69, Q("0.649776 mm")),
    Sketcher.Constraint("Distance", 71, Q("0.649776 mm")),
    Sketcher.Constraint("Distance", 72, Q("0.649776 mm")),
    Sketcher.Constraint("DistanceX", -1, 1, 7, 3, Q("0.000177 mm")),
    Sketcher.Constraint("DistanceY", 16, 3, -1, 1, Q("0.000177 mm")),
    Sketcher.Constraint("DistanceY", 25, 3, -1, 1, Q("0.000177 mm")),
    Sketcher.Constraint("DistanceX", 34, 3, -1, 1, Q("0.000177 mm")),
    Sketcher.Constraint("DistanceX", 43, 3, -1, 1, Q("0.000177 mm")),
    Sketcher.Constraint("DistanceY", -1, 1, 52, 3, Q("0.000177 mm")),
    Sketcher.Constraint("DistanceY", -1, 1, 61, 3, Q("0.000177 mm")),
    Sketcher.Constraint("DistanceX", -1, 1, 70, 3, Q("0.000177 mm")),
    Sketcher.Constraint("DistanceY", 4, 1, -1, 1, Q("1.055196 mm")),
    Sketcher.Constraint("DistanceX", -1, 1, 10, 1, Q("3.705004 mm")),
    Sketcher.Constraint("DistanceX", -1, 1, 11, 2, Q("3.105917 mm")),
    Sketcher.Constraint("DistanceY", 13, 1, -1, 1, Q("4.202042 mm")),
    Sketcher.Constraint("DistanceX", -1, 1, 17, 2, Q("1.136845 mm")),
    Sketcher.Constraint("DistanceX", -1, 1, 18, 2, Q("1.055196 mm")),
    Sketcher.Constraint("DistanceX", 22, 1, -1, 1, Q("1.055196 mm")),
    Sketcher.Constraint("DistanceY", 28, 1, -1, 1, Q("3.705004 mm")),
    Sketcher.Constraint("DistanceX", 29, 2, -1, 1, Q("3.105917 mm")),
    Sketcher.Constraint("DistanceX", 31, 1, -1, 1, Q("4.202042 mm")),
    Sketcher.Constraint("DistanceX", 35, 2, -1, 1, Q("4.242762 mm")),
    Sketcher.Constraint("DistanceX", 36, 2, -1, 1, Q("4.887388 mm")),
    Sketcher.Constraint("DistanceY", -1, 1, 40, 1, Q("1.055196 mm")),
    Sketcher.Constraint("DistanceX", 46, 1, -1, 1, Q("3.705004 mm")),
    Sketcher.Constraint("DistanceX", 47, 2, -1, 1, Q("3.105917 mm")),
    Sketcher.Constraint("DistanceY", -1, 1, 49, 1, Q("4.202042 mm")),
    Sketcher.Constraint("DistanceX", 53, 2, -1, 1, Q("1.136845 mm")),
    Sketcher.Constraint("DistanceX", 54, 2, -1, 1, Q("1.055196 mm")),
    Sketcher.Constraint("DistanceX", -1, 1, 58, 1, Q("1.055196 mm")),
    Sketcher.Constraint("DistanceY", -1, 1, 64, 1, Q("3.705004 mm")),
    Sketcher.Constraint("DistanceX", -1, 1, 65, 2, Q("3.105917 mm")),
    Sketcher.Constraint("DistanceX", -1, 1, 67, 1, Q("4.202042 mm")),
    Sketcher.Constraint("DistanceX", -1, 1, 71, 2, Q("4.242762 mm")),
    Sketcher.Constraint("DistanceX", -1, 1, 72, 2, Q("4.887388 mm")),
])
pad1 = body.newObject("PartDesign::Pad", "Pad")
pad1.Profile = sketch1
pad1.Length = 0.2

doc.recompute()
